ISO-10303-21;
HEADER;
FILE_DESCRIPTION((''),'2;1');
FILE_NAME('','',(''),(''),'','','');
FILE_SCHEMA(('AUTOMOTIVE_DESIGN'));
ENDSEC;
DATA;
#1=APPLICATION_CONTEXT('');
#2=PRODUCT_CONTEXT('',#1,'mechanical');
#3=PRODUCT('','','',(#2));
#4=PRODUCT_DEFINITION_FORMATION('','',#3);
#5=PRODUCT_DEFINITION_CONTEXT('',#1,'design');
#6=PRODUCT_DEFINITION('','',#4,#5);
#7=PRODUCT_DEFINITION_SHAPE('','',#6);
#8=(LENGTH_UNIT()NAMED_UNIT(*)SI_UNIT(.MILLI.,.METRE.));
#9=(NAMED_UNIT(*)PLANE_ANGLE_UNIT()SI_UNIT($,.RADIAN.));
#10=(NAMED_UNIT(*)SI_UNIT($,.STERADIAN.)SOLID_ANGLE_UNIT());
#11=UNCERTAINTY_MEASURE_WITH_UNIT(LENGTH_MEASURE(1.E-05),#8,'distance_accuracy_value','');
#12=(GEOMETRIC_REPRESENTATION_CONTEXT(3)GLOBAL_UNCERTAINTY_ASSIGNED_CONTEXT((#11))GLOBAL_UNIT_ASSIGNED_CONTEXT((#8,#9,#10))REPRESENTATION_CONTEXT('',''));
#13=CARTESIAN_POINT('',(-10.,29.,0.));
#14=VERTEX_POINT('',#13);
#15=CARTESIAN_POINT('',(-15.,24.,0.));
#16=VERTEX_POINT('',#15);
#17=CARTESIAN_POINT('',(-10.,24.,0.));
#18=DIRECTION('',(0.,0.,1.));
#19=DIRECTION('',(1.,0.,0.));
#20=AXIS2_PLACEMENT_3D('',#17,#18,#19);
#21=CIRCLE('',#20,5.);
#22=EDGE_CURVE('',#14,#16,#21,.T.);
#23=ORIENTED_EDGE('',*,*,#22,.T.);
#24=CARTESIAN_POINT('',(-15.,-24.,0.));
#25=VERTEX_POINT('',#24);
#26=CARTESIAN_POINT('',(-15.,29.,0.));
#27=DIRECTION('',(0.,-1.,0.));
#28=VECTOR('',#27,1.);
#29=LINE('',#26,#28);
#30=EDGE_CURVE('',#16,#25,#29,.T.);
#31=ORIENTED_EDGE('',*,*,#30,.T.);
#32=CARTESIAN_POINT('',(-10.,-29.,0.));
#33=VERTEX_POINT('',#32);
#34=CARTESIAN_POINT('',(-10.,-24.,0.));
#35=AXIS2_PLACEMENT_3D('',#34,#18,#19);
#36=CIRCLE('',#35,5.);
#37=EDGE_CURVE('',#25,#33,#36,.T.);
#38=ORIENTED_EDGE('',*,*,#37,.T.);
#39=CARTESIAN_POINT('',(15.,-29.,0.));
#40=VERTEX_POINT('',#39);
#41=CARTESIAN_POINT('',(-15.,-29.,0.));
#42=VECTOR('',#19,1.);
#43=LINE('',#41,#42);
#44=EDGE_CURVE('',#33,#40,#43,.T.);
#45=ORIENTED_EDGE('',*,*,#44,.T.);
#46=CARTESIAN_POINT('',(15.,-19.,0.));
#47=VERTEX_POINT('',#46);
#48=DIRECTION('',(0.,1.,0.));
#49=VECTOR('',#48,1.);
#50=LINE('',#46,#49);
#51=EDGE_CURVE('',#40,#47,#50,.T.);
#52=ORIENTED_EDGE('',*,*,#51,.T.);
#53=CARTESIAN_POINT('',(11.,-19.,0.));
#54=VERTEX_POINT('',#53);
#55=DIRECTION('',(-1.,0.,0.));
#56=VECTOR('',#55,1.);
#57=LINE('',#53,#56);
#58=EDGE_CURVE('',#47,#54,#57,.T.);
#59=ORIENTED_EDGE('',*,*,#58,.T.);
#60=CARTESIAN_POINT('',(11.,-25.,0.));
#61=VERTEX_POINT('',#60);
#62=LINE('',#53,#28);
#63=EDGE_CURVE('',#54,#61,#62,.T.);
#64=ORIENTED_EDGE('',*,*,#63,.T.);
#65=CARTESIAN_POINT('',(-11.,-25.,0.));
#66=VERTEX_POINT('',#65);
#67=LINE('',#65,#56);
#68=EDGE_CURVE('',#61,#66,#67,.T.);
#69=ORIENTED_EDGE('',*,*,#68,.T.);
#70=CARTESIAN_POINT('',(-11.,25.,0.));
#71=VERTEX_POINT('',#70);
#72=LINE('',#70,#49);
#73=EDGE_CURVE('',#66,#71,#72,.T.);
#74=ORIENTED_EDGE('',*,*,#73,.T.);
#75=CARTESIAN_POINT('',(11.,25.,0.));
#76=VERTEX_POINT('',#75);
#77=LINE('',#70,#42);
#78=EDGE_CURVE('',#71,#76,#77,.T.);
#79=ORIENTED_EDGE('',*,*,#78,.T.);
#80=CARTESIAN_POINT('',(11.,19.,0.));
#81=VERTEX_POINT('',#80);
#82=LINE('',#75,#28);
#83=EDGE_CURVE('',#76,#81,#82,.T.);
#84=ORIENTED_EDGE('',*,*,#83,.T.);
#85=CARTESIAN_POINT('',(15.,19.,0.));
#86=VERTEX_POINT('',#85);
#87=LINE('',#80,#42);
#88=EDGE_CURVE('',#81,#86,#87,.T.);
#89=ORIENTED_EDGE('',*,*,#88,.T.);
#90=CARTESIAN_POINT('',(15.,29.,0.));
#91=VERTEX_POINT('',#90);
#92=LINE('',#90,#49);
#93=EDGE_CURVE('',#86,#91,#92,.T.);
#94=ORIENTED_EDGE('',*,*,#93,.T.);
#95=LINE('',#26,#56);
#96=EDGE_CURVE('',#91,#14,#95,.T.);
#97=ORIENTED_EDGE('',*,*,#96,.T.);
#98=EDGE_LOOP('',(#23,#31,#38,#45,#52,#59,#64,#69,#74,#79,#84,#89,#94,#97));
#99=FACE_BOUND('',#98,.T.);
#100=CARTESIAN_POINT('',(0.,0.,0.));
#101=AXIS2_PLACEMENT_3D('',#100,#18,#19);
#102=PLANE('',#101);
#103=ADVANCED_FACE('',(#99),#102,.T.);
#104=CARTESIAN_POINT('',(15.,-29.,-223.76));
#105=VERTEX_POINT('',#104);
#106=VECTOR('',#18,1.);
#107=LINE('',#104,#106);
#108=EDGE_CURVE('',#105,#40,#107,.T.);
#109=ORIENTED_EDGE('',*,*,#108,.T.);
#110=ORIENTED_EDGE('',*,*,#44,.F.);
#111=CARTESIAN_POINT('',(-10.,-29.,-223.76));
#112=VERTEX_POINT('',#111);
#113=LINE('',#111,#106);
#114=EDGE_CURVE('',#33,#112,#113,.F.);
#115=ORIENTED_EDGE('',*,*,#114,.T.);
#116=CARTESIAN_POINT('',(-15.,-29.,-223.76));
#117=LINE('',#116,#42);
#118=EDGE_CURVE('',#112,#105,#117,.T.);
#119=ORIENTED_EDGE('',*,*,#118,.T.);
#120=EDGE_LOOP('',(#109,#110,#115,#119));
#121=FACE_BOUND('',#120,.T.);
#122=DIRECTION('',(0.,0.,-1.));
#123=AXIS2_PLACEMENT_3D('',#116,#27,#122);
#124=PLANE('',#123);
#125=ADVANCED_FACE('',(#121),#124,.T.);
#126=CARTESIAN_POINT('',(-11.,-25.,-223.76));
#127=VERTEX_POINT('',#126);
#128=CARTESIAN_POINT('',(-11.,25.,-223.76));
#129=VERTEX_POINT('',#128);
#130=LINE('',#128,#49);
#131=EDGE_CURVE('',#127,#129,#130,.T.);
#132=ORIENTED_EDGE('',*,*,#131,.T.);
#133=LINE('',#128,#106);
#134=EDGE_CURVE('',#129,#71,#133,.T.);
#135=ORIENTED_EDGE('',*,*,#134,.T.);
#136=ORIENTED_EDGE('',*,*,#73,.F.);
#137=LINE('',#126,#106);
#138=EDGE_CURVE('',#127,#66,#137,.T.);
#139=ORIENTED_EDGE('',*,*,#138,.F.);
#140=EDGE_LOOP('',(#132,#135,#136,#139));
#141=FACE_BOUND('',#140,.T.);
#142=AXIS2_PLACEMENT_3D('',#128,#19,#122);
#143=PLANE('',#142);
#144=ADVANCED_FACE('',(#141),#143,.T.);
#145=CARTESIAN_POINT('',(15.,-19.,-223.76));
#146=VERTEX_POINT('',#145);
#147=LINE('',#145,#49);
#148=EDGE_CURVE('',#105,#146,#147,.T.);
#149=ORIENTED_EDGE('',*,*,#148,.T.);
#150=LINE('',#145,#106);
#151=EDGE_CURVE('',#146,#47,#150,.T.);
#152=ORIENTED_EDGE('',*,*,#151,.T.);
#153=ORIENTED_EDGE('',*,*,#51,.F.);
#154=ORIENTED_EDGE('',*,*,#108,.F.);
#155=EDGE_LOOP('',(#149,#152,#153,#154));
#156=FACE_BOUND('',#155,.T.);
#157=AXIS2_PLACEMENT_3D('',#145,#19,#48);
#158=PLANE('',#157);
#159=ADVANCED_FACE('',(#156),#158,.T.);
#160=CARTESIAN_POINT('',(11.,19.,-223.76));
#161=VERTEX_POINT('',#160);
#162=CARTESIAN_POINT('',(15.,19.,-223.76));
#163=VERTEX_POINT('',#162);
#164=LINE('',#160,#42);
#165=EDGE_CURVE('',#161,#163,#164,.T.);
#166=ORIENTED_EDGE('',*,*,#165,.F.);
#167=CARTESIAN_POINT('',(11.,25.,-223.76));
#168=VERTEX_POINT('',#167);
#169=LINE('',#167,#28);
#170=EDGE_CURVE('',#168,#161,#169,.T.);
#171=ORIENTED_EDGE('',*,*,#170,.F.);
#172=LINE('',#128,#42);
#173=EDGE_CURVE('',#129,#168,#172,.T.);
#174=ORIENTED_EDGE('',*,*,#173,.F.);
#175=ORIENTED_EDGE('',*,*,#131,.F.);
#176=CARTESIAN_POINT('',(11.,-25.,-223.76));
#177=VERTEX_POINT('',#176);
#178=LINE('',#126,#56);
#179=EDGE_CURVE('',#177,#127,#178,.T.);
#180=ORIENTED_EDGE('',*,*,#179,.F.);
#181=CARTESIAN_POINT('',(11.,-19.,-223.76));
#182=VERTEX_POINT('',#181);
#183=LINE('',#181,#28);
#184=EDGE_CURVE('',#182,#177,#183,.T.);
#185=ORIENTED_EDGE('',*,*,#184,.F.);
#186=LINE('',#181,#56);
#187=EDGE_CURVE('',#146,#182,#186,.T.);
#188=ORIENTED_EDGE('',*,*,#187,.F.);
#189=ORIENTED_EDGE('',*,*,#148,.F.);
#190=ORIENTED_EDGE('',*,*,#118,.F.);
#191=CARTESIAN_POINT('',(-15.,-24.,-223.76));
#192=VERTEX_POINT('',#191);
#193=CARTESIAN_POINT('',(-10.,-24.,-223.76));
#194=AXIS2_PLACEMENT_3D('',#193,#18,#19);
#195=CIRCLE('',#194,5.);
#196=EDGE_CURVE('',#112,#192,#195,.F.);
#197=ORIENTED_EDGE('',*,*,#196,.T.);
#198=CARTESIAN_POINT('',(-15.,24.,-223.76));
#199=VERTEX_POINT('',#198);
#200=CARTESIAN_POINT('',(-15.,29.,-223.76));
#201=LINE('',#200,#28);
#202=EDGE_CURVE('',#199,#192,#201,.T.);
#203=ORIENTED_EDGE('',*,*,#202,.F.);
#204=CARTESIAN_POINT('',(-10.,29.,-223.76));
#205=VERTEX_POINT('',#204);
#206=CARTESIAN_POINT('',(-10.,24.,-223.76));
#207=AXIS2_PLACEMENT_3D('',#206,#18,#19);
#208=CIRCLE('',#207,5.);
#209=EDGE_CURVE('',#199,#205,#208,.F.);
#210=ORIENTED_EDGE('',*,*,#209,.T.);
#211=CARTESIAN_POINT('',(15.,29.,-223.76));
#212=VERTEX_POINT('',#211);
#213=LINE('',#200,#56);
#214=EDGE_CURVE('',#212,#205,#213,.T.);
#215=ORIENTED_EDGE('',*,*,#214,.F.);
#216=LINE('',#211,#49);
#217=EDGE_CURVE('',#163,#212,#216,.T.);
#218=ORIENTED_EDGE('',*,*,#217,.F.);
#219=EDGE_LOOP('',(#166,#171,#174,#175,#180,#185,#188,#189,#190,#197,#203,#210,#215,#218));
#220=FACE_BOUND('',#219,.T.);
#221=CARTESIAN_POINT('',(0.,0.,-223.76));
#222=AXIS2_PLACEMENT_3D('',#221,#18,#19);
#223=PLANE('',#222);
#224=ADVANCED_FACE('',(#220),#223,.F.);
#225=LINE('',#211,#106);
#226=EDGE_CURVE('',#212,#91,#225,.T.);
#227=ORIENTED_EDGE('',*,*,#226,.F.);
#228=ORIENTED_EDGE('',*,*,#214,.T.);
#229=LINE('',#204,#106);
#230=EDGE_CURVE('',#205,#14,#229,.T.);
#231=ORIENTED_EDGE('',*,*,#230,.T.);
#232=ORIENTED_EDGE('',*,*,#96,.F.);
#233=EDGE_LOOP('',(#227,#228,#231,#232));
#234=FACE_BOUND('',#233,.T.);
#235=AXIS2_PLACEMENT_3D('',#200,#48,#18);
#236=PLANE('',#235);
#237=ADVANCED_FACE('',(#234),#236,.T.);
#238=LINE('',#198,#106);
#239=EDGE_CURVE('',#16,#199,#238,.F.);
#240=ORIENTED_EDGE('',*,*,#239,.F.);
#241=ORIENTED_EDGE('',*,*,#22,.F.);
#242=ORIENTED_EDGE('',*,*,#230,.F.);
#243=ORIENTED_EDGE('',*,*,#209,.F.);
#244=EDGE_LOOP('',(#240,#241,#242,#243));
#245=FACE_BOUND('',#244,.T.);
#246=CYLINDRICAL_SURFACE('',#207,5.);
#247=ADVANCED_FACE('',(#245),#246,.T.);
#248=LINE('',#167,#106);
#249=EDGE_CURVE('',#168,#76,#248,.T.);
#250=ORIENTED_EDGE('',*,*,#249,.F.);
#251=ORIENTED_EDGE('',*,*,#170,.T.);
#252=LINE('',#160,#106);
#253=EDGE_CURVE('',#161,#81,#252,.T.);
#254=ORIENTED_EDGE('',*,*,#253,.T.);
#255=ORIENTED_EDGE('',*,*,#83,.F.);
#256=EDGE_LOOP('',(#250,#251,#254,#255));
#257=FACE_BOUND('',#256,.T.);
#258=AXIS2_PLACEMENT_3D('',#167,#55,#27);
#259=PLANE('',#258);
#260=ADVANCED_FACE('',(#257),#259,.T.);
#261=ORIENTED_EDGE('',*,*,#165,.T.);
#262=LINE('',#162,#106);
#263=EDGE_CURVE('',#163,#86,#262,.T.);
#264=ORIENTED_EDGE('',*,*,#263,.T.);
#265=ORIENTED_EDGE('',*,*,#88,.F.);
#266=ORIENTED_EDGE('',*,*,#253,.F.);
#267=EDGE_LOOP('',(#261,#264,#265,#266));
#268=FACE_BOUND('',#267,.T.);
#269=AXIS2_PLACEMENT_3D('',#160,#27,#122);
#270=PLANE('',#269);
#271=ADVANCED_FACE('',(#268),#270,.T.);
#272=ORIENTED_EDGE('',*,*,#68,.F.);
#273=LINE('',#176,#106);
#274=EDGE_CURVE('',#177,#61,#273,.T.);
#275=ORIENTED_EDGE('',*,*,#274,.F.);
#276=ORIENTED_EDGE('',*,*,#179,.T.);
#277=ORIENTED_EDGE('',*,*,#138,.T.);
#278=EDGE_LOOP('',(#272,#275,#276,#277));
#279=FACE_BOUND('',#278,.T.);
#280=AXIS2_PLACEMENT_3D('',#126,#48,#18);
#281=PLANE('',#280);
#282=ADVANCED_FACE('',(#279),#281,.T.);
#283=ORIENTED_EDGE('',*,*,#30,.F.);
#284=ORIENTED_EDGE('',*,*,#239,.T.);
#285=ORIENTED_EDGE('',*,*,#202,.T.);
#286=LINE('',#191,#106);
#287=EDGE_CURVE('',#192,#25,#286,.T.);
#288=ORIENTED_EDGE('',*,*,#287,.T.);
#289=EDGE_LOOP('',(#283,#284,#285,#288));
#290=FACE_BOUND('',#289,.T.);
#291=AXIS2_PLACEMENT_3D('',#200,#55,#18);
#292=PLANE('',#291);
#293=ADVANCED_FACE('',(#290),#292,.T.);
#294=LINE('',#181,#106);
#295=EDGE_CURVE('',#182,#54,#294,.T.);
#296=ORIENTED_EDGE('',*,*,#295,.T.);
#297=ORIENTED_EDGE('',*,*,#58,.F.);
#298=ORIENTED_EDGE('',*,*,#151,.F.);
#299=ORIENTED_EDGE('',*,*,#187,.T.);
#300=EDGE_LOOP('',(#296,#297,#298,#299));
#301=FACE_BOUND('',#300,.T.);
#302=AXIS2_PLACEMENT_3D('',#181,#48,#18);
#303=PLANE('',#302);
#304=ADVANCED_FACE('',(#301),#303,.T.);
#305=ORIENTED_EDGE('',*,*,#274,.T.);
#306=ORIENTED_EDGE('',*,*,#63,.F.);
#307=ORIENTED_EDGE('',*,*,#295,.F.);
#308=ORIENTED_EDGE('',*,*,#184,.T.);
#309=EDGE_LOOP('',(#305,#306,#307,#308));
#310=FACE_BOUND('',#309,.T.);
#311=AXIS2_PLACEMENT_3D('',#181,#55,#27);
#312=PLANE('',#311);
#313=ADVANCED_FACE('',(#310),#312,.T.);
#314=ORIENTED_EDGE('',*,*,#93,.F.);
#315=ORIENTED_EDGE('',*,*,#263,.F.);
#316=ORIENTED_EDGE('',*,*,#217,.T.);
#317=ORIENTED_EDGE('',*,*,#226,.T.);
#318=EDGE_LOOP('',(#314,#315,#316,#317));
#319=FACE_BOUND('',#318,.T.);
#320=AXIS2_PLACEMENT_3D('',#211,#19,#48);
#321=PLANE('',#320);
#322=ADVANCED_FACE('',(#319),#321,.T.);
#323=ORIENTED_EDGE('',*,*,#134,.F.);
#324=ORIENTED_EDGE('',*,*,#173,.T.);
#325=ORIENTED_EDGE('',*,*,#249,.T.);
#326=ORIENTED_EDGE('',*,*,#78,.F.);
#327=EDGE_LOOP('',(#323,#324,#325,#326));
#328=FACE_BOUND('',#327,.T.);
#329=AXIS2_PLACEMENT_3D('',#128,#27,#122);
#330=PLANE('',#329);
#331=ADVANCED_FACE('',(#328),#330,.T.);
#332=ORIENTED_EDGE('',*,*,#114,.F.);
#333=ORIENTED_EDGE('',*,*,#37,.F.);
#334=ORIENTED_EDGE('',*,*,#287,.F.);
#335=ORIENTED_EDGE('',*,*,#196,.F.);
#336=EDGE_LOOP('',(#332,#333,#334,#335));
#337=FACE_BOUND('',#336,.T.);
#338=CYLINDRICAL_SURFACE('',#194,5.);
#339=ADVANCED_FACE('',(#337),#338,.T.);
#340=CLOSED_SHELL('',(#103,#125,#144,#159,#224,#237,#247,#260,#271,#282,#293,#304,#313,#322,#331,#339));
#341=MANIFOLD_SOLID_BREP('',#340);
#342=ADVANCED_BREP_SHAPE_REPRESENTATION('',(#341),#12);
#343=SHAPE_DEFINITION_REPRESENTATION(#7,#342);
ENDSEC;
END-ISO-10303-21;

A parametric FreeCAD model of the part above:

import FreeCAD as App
import Part
import Sketcher


def edges_at(feature, points):
    """Names of the edges that pass closest to the given points."""
    edges = feature.Shape.Edges
    near = lambda p: min(range(len(edges)), key=lambda i: edges[i].distToShape(Part.Vertex(*p))[0])
    return sorted({f"Edge{near(p) + 1}" for p in points})

doc = App.newDocument("Part")
body = doc.addObject("PartDesign::Body", "Body")

# Sketch on XY plane
sketch1 = body.newObject("Sketcher::SketchObject", "Sketch")
sketch1.AttachmentSupport = (doc.getObject("XY_Plane"), [""])
sketch1.MapMode = "FlatFace"
sketch1.addGeometry(Part.LineSegment(App.Vector(11, 19, 0), App.Vector(15, 19, 0)), False)
sketch1.addGeometry(Part.LineSegment(App.Vector(15, 19, 0), App.Vector(15, 29, 0)), False)
sketch1.addGeometry(Part.LineSegment(App.Vector(15, 29, 0), App.Vector(-15, 29, 0)), False)
sketch1.addGeometry(Part.LineSegment(App.Vector(-15, 29, 0), App.Vector(-15, -29, 0)), False)
sketch1.addGeometry(Part.LineSegment(App.Vector(-15, -29, 0), App.Vector(15, -29, 0)), False)
sketch1.addGeometry(Part.LineSegment(App.Vector(15, -29, 0), App.Vector(15, -19, 0)), False)
sketch1.addGeometry(Part.LineSegment(App.Vector(15, -19, 0), App.Vector(11, -19, 0)), False)
sketch1.addGeometry(Part.LineSegment(App.Vector(11, -19, 0), App.Vector(11, -25, 0)), False)
sketch1.addGeometry(Part.LineSegment(App.Vector(11, -25, 0), App.Vector(-11, -25, 0)), False)
sketch1.addGeometry(Part.LineSegment(App.Vector(-11, -25, 0), App.Vector(-11, 25, 0)), False)
sketch1.addGeometry(Part.LineSegment(App.Vector(-11, 25, 0), App.Vector(11, 25, 0)), False)
sketch1.addGeometry(Part.LineSegment(App.Vector(11, 25, 0), App.Vector(11, 19, 0)), False)
sketch1.addConstraint(Sketcher.Constraint("Coincident", 0, 2, 1, 1))
sketch1.addConstraint(Sketcher.Constraint("Coincident", 1, 2, 2, 1))
sketch1.addConstraint(Sketcher.Constraint("Coincident", 2, 2, 3, 1))
sketch1.addConstraint(Sketcher.Constraint("Coincident", 3, 2, 4, 1))
sketch1.addConstraint(Sketcher.Constraint("Coincident", 4, 2, 5, 1))
sketch1.addConstraint(Sketcher.Constraint("Coincident", 5, 2, 6, 1))
sketch1.addConstraint(Sketcher.Constraint("Coincident", 6, 2, 7, 1))
sketch1.addConstraint(Sketcher.Constraint("Coincident", 7, 2, 8, 1))
sketch1.addConstraint(Sketcher.Constraint("Coincident", 8, 2, 9, 1))
sketch1.addConstraint(Sketcher.Constraint("Coincident", 9, 2, 10, 1))
sketch1.addConstraint(Sketcher.Constraint("Coincident", 10, 2, 11, 1))
sketch1.addConstraint(Sketcher.Constraint("Coincident", 11, 2, 0, 1))
sketch1.addConstraint(Sketcher.Constraint("Horizontal", 0))
sketch1.addConstraint(Sketcher.Constraint("Vertical", 1))
sketch1.addConstraint(Sketcher.Constraint("Horizontal", 2))
sketch1.addConstraint(Sketcher.Constraint("Vertical", 3))
sketch1.addConstraint(Sketcher.Constraint("Horizontal", 4))
sketch1.addConstraint(Sketcher.Constraint("Vertical", 5))
sketch1.addConstraint(Sketcher.Constraint("Horizontal", 6))
sketch1.addConstraint(Sketcher.Constraint("Vertical", 7))
sketch1.addConstraint(Sketcher.Constraint("Horizontal", 8))
sketch1.addConstraint(Sketcher.Constraint("Vertical", 9))
sketch1.addConstraint(Sketcher.Constraint("Horizontal", 10))
sketch1.addConstraint(Sketcher.Constraint("Vertical", 11))
sketch1.addConstraint(Sketcher.Constraint("Symmetric", 1, 2, 3, 2, -1, 1))
sketch1.addConstraint(Sketcher.Constraint("Symmetric", 7, 2, 9, 2, -1, 1))
sketch1.addConstraint(Sketcher.Constraint("Symmetric", 0, 2, 5, 2, -1))
sketch1.addConstraint(Sketcher.Constraint("Vertical", 7, 2, 10, 2))
sketch1.addConstraint(Sketcher.Constraint("DistanceX", 0, 1, 0, 2, 4.0))
sketch1.addConstraint(Sketcher.Constraint("DistanceX", 2, 2, 2, 1, 30.0))
sketch1.addConstraint(Sketcher.Constraint("DistanceY", 1, 1, 1, 2, 10.0))
sketch1.addConstraint(Sketcher.Constraint("DistanceY", 3, 2, 3, 1, 58.0))
sketch1.addConstraint(Sketcher.Constraint("DistanceY", 7, 2, 7, 1, 6.0))
pad1 = body.newObject("PartDesign::Pad", "Pad")
pad1.Profile = sketch1
pad1.Length = 223.76
pad1.Reversed = True
doc.recompute()

fillet = body.newObject("PartDesign::Fillet", "Fillet")
fillet.Base = (pad1, edges_at(pad1, [(-15, 29, -111.88), (-15, -29, -111.88)]))
fillet.Radius = 5

doc.recompute()
